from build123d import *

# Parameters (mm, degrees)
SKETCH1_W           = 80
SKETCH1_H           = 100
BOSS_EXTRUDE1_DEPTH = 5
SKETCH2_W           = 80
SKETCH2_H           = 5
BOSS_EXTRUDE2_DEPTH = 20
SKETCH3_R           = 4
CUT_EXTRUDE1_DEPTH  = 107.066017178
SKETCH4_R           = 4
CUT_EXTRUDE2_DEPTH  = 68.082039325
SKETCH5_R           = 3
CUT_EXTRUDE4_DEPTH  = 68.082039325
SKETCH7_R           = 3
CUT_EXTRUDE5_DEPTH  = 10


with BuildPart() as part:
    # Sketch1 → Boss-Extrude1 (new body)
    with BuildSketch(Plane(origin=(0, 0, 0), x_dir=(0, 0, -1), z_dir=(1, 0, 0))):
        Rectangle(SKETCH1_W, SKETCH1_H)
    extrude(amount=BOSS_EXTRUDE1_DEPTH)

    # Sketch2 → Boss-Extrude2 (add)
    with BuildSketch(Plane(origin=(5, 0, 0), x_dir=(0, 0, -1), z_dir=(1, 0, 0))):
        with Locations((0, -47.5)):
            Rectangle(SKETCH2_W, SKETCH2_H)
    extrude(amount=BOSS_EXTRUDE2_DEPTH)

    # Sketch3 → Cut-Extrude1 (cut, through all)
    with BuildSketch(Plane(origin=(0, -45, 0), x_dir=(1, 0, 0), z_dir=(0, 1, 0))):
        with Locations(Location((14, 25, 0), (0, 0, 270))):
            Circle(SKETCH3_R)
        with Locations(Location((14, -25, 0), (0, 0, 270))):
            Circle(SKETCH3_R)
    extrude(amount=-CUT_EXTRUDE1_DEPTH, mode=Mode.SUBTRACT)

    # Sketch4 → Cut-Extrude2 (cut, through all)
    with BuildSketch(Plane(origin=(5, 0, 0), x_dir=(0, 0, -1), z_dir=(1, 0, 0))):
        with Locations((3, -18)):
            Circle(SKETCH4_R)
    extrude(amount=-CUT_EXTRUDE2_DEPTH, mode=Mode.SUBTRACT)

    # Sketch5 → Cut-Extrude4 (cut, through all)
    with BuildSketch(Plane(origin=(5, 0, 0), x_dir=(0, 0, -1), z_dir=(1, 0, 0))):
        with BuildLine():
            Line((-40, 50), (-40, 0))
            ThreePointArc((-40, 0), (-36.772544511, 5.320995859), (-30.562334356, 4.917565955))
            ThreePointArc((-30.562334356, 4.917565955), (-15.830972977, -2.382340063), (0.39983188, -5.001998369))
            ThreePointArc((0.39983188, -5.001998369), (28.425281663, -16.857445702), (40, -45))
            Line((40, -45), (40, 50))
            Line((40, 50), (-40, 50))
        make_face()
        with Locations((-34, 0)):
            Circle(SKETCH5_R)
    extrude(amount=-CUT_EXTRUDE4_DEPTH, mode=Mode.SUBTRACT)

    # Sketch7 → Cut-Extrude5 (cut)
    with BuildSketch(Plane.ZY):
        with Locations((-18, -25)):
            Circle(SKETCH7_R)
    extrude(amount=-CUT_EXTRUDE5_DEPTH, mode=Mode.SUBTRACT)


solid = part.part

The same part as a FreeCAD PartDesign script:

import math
import FreeCAD as App
import Part
import Sketcher

V = App.Vector
Q = App.Units.Quantity


def add_polygon(sketch, points):
    """Adds a closed chain of lines whose ends are joined by coincident constraints."""
    first, n = sketch.GeometryCount, len(points)
    for a, b in zip(points, points[1:] + points[:1]):
        sketch.addGeometry(Part.LineSegment(App.Vector(*a, 0), App.Vector(*b, 0)), False)
    for i in range(n):
        sketch.addConstraint(Sketcher.Constraint("Coincident", first + i, 2, first + (i + 1) % n, 1))

doc = App.newDocument("Part")
body = doc.addObject("PartDesign::Body", "Body")

# Sketch on YZ plane
sketch1 = body.newObject("Sketcher::SketchObject", "Sketch")
sketch1.AttachmentSupport = (doc.getObject("YZ_Plane"), [""])
sketch1.MapMode = "FlatFace"
add_polygon(sketch1, [(50, 40), (-50, 40), (-50, -40), (50, -40)])  # lines 0-3
sketch1.addConstraint(Sketcher.Constraint("Horizontal", 0))
sketch1.addConstraint(Sketcher.Constraint("Vertical", 1))
sketch1.addConstraint(Sketcher.Constraint("Horizontal", 2))
sketch1.addConstraint(Sketcher.Constraint("Vertical", 3))
sketch1.addConstraint(Sketcher.Constraint("Symmetric", 0, 2, 2, 2, -1, 1))
sketch1.addConstraint(Sketcher.Constraint("DistanceX", 0, 2, 0, 1, Q("100 mm")))
sketch1.addConstraint(Sketcher.Constraint("DistanceY", 1, 2, 1, 1, Q("80 mm")))
pad1 = body.newObject("PartDesign::Pad", "Pad")
pad1.Profile = sketch1
pad1.Length = 5

# Sketch on YZ plane
sketch2 = body.newObject("Sketcher::SketchObject", "Sketch001")
sketch2.AttachmentSupport = (doc.getObject("YZ_Plane"), [""])
sketch2.MapMode = "FlatFace"
sketch2.AttachmentOffset = App.Placement(V(0, 0, 5), App.Rotation())
add_polygon(sketch2, [(-45, 40), (-50, 40), (-50, -40), (-45, -40)])  # lines 0-3
sketch2.addConstraint(Sketcher.Constraint("Horizontal", 0))
sketch2.addConstraint(Sketcher.Constraint("Vertical", 1))
sketch2.addConstraint(Sketcher.Constraint("Horizontal", 2))
sketch2.addConstraint(Sketcher.Constraint("Vertical", 3))
sketch2.addConstraint(Sketcher.Constraint("DistanceX", 0, 2, 0, 1, Q("5 mm")))
sketch2.addConstraint(Sketcher.Constraint("DistanceY", 1, 2, 1, 1, Q("80 mm")))
sketch2.addConstraint(Sketcher.Constraint("DistanceX", 0, 2, -1, 1, Q("50 mm")))
sketch2.addConstraint(Sketcher.Constraint("DistanceY", -1, 1, 0, 2, Q("40 mm")))
pad2 = body.newObject("PartDesign::Pad", "Pad001")
pad2.Profile = sketch2
pad2.Length = 20

# Sketch on XZ plane
sketch3 = body.newObject("Sketcher::SketchObject", "Sketch002")
sketch3.AttachmentSupport = (doc.getObject("XZ_Plane"), [""])
sketch3.MapMode = "FlatFace"
sketch3.AttachmentOffset = App.Placement(V(0, 0, 45), App.Rotation())
sketch3.addGeometry(Part.Circle(V(14, -25, 0), V(0, 0, 1), 4), False)
sketch3.addGeometry(Part.Circle(V(14, 25, 0), V(0, 0, 1), 4), False)
sketch3.addConstraint(Sketcher.Constraint("Equal", 0, 1))
sketch3.addConstraint(Sketcher.Constraint("Symmetric", 0, 3, 1, 3, -1))
sketch3.addConstraint(Sketcher.Constraint("Diameter", 0, Q("8 mm")))
sketch3.addConstraint(Sketcher.Constraint("DistanceX", -1, 1, 0, 3, Q("14 mm")))
sketch3.addConstraint(Sketcher.Constraint("DistanceY", 0, 3, -1, 1, Q("25 mm")))
pocket1 = body.newObject("PartDesign::Pocket", "Pocket")
pocket1.Profile = sketch3
pocket1.Type = "ThroughAll"
pocket1.Reversed = True

# Sketch on YZ plane
sketch4 = body.newObject("Sketcher::SketchObject", "Sketch003")
sketch4.AttachmentSupport = (doc.getObject("YZ_Plane"), [""])
sketch4.MapMode = "FlatFace"
sketch4.AttachmentOffset = App.Placement(V(0, 0, 5), App.Rotation())
sketch4.addGeometry(Part.Circle(V(-18, -3, 0), V(0, 0, 1), 4), False)
sketch4.addConstraint(Sketcher.Constraint("Diameter", 0, Q("8 mm")))
sketch4.addConstraint(Sketcher.Constraint("DistanceX", 0, 3, -1, 1, Q("18 mm")))
sketch4.addConstraint(Sketcher.Constraint("DistanceY", 0, 3, -1, 1, Q("3 mm")))
pocket2 = body.newObject("PartDesign::Pocket", "Pocket001")
pocket2.Profile = sketch4
pocket2.Type = "ThroughAll"

# Sketch on YZ plane
sketch5 = body.newObject("Sketcher::SketchObject", "Sketch004")
sketch5.AttachmentSupport = (doc.getObject("YZ_Plane"), [""])
sketch5.MapMode = "FlatFace"
sketch5.AttachmentOffset = App.Placement(V(0, 0, 5), App.Rotation())
sketch5.addGeometry(Part.LineSegment(V(50, 40, 0), V(0, 40, 0)), False)
sketch5.addGeometry(Part.ArcOfCircle(Part.Circle(V(0, 34, 0), V(0, 0, 1), 6), math.radians(-34.955795), math.radians(90)), False)
sketch5.addGeometry(Part.ArcOfCircle(Part.Circle(V(49.995254, -0.949601, 0), V(0, 0, 1), 55), math.radians(145.044205), math.radians(179.427273)), False)
sketch5.addGeometry(Part.ArcOfCircle(Part.Circle(V(-45, 0, 0), V(0, 0, 1), 40), math.radians(-90), math.radians(-0.572727)), False)
sketch5.addGeometry(Part.LineSegment(V(-45, -40, 0), V(50, -40, 0)), False)
sketch5.addGeometry(Part.LineSegment(V(50, -40, 0), V(50, 40, 0)), False)
sketch5.addGeometry(Part.Circle(V(0, 34, 0), V(0, 0, 1), 3), False)
sketch5.addConstraint(Sketcher.Constraint("Tangent", 0, 2, 1, 2))
sketch5.addConstraint(Sketcher.Constraint("Tangent", 1, 1, 2, 1))
sketch5.addConstraint(Sketcher.Constraint("Tangent", 2, 2, 3, 2))
sketch5.addConstraint(Sketcher.Constraint("Tangent", 3, 1, 4, 1))
sketch5.addConstraint(Sketcher.Constraint("Coincident", 4, 2, 5, 1))
sketch5.addConstraint(Sketcher.Constraint("Coincident", 5, 2, 0, 1))
sketch5.addConstraint(Sketcher.Constraint("Horizontal", 0))
sketch5.addConstraint(Sketcher.Constraint("Horizontal", 4))
sketch5.addConstraint(Sketcher.Constraint("Vertical", 5))
sketch5.addConstraint(Sketcher.Constraint("Coincident", 6, 3, 1, 3))
sketch5.addConstraint(Sketcher.Constraint("PointOnObject", 1, 3, -2))
sketch5.addConstraint(Sketcher.Constraint("PointOnObject", 3, 3, -1))
sketch5.addConstraint(Sketcher.Constraint("Diameter", 6, Q("6 mm")))
sketch5.addConstraint(Sketcher.Constraint("Radius", 1, Q("6 mm")))
sketch5.addConstraint(Sketcher.Constraint("Radius", 2, Q("55 mm")))
sketch5.addConstraint(Sketcher.Constraint("Radius", 3, Q("40 mm")))
sketch5.addConstraint(Sketcher.Constraint("DistanceX", 0, 2, 0, 1, Q("50 mm")))
sketch5.addConstraint(Sketcher.Constraint("DistanceX", 4, 1, 4, 2, Q("95 mm")))
sketch5.addConstraint(Sketcher.Constraint("DistanceY", 5, 1, 5, 2, Q("80 mm")))
pocket3 = body.newObject("PartDesign::Pocket", "Pocket002")
pocket3.Profile = sketch5
pocket3.Type = "ThroughAll"

# Sketch on YZ plane
sketch6 = body.newObject("Sketcher::SketchObject", "Sketch005")
sketch6.AttachmentSupport = (doc.getObject("YZ_Plane"), [""])
sketch6.MapMode = "FlatFace"
sketch6.addGeometry(Part.Circle(V(-25, -18, 0), V(0, 0, 1), 3), False)
sketch6.addConstraint(Sketcher.Constraint("Diameter", 0, Q("6 mm")))
sketch6.addConstraint(Sketcher.Constraint("DistanceX", 0, 3, -1, 1, Q("25 mm")))
sketch6.addConstraint(Sketcher.Constraint("DistanceY", 0, 3, -1, 1, Q("18 mm")))
pocket4 = body.newObject("PartDesign::Pocket", "Pocket003")
pocket4.Profile = sketch6
pocket4.Length = 10
pocket4.Reversed = True

doc.recompute()
